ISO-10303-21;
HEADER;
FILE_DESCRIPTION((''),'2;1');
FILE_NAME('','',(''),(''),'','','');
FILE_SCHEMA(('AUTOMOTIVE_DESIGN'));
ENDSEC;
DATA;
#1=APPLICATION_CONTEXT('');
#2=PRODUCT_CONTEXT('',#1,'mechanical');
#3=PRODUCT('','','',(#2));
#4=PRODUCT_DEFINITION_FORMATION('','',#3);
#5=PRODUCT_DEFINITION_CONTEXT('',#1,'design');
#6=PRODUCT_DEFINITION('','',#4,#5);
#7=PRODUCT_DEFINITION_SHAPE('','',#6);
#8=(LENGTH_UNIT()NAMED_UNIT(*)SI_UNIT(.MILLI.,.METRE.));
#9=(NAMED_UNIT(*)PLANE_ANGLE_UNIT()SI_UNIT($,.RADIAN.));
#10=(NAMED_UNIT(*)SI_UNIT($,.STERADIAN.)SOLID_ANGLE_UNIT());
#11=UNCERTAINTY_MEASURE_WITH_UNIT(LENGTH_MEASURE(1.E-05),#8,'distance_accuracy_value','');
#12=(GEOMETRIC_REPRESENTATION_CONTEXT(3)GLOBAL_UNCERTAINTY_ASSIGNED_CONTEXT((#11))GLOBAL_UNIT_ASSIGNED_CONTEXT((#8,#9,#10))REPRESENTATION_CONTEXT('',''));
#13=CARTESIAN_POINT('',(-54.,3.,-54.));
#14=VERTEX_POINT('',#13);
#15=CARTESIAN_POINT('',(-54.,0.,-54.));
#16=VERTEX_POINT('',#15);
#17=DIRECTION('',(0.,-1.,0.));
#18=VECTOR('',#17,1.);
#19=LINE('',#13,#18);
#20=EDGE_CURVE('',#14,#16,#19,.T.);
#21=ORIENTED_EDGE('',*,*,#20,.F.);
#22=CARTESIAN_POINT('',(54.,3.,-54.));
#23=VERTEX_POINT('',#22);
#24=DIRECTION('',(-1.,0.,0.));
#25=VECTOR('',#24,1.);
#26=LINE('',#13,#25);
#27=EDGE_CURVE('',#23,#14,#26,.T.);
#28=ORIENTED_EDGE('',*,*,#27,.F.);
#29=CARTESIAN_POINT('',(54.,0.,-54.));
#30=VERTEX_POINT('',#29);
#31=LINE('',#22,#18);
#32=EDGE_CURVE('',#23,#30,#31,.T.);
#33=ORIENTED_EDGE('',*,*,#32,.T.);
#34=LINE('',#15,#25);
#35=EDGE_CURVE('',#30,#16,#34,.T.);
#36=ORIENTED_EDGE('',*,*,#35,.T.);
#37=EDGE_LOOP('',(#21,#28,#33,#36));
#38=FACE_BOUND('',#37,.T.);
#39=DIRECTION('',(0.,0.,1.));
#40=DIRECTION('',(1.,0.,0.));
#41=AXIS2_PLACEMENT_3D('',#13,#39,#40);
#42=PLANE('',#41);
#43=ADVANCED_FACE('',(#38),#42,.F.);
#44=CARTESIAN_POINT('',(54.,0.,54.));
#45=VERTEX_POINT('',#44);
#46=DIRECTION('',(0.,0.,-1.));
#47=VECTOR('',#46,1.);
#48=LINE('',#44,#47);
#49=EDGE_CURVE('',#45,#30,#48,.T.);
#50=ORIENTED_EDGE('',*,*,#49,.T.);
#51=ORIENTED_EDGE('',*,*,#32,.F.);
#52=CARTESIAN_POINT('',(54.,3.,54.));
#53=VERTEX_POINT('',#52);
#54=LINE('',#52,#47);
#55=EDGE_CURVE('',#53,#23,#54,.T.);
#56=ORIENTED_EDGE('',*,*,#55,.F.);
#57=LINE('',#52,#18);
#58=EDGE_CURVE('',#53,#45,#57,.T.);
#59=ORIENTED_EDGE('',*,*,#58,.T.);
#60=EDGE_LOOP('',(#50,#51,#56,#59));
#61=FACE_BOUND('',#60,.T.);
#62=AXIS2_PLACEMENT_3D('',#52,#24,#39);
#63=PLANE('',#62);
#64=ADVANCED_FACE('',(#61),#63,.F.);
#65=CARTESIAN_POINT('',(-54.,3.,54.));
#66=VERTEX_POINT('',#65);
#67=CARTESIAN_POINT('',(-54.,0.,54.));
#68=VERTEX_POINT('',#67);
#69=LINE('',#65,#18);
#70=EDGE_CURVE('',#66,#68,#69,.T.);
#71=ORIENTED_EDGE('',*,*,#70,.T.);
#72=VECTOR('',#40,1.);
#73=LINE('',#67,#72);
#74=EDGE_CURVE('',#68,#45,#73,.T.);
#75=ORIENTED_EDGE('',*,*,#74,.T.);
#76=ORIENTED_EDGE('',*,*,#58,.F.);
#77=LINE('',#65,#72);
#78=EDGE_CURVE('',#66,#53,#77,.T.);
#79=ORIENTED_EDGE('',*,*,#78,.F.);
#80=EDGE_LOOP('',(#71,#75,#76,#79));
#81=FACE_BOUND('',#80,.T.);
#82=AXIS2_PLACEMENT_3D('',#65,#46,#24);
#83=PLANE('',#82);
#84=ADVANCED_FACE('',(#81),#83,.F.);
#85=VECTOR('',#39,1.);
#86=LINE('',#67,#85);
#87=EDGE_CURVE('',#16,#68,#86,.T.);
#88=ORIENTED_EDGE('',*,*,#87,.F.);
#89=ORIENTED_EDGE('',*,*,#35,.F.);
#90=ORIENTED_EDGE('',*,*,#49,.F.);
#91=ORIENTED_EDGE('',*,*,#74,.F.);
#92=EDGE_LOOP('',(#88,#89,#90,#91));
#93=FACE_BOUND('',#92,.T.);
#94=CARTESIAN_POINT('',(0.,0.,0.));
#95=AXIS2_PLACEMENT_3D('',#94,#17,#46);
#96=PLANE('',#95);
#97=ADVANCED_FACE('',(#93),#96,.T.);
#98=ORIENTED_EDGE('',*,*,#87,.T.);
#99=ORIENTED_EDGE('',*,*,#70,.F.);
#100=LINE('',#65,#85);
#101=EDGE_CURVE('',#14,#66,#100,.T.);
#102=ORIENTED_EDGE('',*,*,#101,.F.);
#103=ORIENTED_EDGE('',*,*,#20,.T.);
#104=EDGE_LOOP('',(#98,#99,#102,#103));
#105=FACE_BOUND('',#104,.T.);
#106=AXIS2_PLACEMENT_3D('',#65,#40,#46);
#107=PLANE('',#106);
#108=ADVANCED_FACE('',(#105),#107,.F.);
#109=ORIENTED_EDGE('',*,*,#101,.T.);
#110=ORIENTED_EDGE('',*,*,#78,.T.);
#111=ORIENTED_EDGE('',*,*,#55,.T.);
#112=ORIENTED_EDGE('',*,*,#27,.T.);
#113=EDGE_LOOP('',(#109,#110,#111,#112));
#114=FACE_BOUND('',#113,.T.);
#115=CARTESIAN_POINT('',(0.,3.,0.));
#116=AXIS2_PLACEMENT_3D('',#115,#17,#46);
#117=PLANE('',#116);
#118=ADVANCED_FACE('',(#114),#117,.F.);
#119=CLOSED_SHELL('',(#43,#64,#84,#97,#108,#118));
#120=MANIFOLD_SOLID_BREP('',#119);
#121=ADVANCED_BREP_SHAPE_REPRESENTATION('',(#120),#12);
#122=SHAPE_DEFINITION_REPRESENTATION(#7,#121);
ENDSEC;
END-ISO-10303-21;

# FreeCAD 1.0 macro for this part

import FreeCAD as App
import Part
import Sketcher
Q = App.Units.Quantity


def add_polygon(sketch, points):
    """Adds a closed chain of lines whose ends are joined by coincident constraints."""
    first, n = sketch.GeometryCount, len(points)
    for a, b in zip(points, points[1:] + points[:1]):
        sketch.addGeometry(Part.LineSegment(App.Vector(*a, 0), App.Vector(*b, 0)), False)
    for i in range(n):
        sketch.addConstraint(Sketcher.Constraint("Coincident", first + i, 2, first + (i + 1) % n, 1))

doc = App.newDocument("Part")
body = doc.addObject("PartDesign::Body", "Body")

# Sketch on XZ plane
sketch1 = doc.addObject("Sketcher::SketchObject", "Sketch")
body.addObject(sketch1)
sketch1.AttachmentSupport = (doc.XZ_Plane, [""])
sketch1.MapMode = "FlatFace"
add_polygon(sketch1, [(-54, -54), (-54, 54), (54, 54), (54, -54)])  # lines 0-3
sketch1.addConstraint([
    Sketcher.Constraint("Vertical", 0),
    Sketcher.Constraint("Horizontal", 1),
    Sketcher.Constraint("Vertical", 2),
    Sketcher.Constraint("Horizontal", 3),
    Sketcher.Constraint("Symmetric", 0, 2, 2, 2, -1, 1),
    Sketcher.Constraint("Equal", 3, 0),
    Sketcher.Constraint("DistanceX", 1, 1, 1, 2, Q("108 mm")),
])
pad1 = doc.addObject("PartDesign::Pad", "Pad")
body.addObject(pad1)
pad1.Profile = sketch1
pad1.Length = 3
pad1.Reversed = True

doc.recompute()
